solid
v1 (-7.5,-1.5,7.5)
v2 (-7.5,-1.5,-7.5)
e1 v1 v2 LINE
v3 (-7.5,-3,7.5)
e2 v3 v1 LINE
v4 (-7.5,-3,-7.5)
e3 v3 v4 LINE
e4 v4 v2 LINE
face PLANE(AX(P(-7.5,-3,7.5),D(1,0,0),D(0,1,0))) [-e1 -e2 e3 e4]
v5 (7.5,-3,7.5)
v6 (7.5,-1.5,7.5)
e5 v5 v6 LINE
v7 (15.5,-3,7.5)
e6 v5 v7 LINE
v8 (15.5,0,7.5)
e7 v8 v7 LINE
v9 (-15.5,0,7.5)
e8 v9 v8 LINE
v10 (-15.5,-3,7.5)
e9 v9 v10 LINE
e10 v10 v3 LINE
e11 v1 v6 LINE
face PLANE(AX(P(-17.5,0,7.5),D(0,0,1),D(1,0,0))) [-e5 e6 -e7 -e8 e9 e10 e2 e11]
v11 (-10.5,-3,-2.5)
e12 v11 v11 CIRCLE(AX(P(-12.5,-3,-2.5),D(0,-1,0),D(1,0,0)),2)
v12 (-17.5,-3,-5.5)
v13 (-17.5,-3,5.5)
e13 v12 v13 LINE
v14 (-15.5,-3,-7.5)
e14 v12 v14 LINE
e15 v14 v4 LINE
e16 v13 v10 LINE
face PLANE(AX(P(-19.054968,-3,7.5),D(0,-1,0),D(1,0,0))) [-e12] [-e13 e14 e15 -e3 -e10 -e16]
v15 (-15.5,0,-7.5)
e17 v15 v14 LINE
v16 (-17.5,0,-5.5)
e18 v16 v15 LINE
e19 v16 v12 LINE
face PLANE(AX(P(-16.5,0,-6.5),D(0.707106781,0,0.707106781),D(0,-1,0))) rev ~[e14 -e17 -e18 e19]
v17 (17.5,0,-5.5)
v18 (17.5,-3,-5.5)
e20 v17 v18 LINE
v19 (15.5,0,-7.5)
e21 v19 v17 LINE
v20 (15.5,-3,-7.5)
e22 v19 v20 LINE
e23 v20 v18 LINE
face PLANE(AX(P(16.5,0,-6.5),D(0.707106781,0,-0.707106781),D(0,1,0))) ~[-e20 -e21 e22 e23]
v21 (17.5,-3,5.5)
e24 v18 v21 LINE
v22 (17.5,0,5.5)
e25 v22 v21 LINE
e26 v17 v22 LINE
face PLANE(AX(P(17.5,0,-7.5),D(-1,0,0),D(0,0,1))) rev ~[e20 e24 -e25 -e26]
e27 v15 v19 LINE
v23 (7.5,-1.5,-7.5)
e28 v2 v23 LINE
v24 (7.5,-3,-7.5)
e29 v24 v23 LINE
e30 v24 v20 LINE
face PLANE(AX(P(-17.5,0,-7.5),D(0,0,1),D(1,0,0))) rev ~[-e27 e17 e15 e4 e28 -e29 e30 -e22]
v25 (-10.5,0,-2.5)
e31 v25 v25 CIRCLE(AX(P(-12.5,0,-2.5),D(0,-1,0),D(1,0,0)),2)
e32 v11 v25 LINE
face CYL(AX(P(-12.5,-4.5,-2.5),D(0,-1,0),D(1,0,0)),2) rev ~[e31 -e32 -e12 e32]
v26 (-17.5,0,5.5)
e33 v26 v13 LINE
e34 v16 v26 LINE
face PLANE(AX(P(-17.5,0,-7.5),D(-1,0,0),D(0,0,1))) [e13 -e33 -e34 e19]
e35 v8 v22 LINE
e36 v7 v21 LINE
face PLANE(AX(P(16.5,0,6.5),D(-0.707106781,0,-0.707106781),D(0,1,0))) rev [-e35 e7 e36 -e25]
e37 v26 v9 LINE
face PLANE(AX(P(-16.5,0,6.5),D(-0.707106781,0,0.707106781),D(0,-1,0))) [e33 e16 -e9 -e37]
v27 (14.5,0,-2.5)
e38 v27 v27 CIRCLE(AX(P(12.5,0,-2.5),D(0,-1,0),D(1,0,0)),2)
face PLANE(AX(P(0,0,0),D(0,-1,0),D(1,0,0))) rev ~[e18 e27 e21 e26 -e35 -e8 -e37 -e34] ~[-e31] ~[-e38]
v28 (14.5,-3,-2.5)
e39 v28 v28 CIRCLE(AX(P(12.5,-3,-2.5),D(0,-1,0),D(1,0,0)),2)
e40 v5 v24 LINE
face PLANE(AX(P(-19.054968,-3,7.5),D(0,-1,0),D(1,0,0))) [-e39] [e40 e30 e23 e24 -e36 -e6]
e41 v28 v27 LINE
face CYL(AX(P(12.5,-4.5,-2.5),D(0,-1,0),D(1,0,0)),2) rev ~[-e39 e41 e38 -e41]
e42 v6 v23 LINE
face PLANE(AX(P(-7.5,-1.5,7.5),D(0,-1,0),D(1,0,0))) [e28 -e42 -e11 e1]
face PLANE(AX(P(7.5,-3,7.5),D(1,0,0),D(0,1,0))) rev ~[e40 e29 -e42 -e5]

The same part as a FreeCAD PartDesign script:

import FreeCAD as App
import Part
import Sketcher

V = App.Vector


def edges_at(feature, points):
    """Names of the edges that pass closest to the given points."""
    edges = feature.Shape.Edges
    near = lambda p: min(range(len(edges)), key=lambda i: edges[i].distToShape(Part.Vertex(*p))[0])
    return sorted({f"Edge{near(p) + 1}" for p in points})

doc = App.newDocument("Part")
body = doc.addObject("PartDesign::Body", "Body")

# Sketch on XZ plane
sketch1 = body.newObject("Sketcher::SketchObject", "Sketch")
sketch1.AttachmentSupport = (doc.getObject("XZ_Plane"), [""])
sketch1.MapMode = "FlatFace"
sketch1.addGeometry(Part.LineSegment(V(-18, 8, 0), V(-18, -8, 0)), False)
sketch1.addGeometry(Part.LineSegment(V(-18, -8, 0), V(18, -8, 0)), False)
sketch1.addGeometry(Part.LineSegment(V(18, -8, 0), V(18, 8, 0)), False)
sketch1.addGeometry(Part.LineSegment(V(18, 8, 0), V(-18, 8, 0)), False)
sketch1.addConstraint(Sketcher.Constraint("Coincident", 0, 2, 1, 1))
sketch1.addConstraint(Sketcher.Constraint("Coincident", 1, 2, 2, 1))
sketch1.addConstraint(Sketcher.Constraint("Coincident", 2, 2, 3, 1))
sketch1.addConstraint(Sketcher.Constraint("Coincident", 3, 2, 0, 1))
sketch1.addConstraint(Sketcher.Constraint("Vertical", 0))
sketch1.addConstraint(Sketcher.Constraint("Horizontal", 1))
sketch1.addConstraint(Sketcher.Constraint("Vertical", 2))
sketch1.addConstraint(Sketcher.Constraint("Horizontal", 3))
sketch1.addConstraint(Sketcher.Constraint("Symmetric", 0, 2, 2, 2, -1, 1))
sketch1.addConstraint(Sketcher.Constraint("DistanceX", 1, 1, 1, 2, 35.0))
sketch1.addConstraint(Sketcher.Constraint("DistanceY", 0, 2, 0, 1, 15.0))
pad1 = body.newObject("PartDesign::Pad", "Pad")
pad1.Profile = sketch1
pad1.Length = 4.5

# Sketch on XY plane
sketch2 = body.newObject("Sketcher::SketchObject", "Sketch001")
sketch2.AttachmentSupport = (doc.getObject("XY_Plane"), [""])
sketch2.MapMode = "FlatFace"
sketch2.AttachmentOffset = App.Placement(V(0, 0, 7.5), App.Rotation())
sketch2.addGeometry(Part.LineSegment(V(-7.5, -1.5, 0), V(-7.5, -3, 0)), False)
sketch2.addGeometry(Part.LineSegment(V(-7.5, -3, 0), V(7.5, -3, 0)), False)
sketch2.addGeometry(Part.LineSegment(V(7.5, -3, 0), V(7.5, -1.5, 0)), False)
sketch2.addGeometry(Part.LineSegment(V(7.5, -1.5, 0), V(-7.5, -1.5, 0)), False)
sketch2.addConstraint(Sketcher.Constraint("Coincident", 0, 2, 1, 1))
sketch2.addConstraint(Sketcher.Constraint("Coincident", 1, 2, 2, 1))
sketch2.addConstraint(Sketcher.Constraint("Coincident", 2, 2, 3, 1))
sketch2.addConstraint(Sketcher.Constraint("Coincident", 3, 2, 0, 1))
sketch2.addConstraint(Sketcher.Constraint("Vertical", 0))
sketch2.addConstraint(Sketcher.Constraint("Horizontal", 1))
sketch2.addConstraint(Sketcher.Constraint("Vertical", 2))
sketch2.addConstraint(Sketcher.Constraint("Horizontal", 3))
sketch2.addConstraint(Sketcher.Constraint("DistanceX", 1, 1, 1, 2, 15.0))
sketch2.addConstraint(Sketcher.Constraint("DistanceY", 0, 2, 0, 1, 1.5))
sketch2.addConstraint(Sketcher.Constraint("DistanceY", 0, 2, -1, 1, 3.0))
sketch2.addConstraint(Sketcher.Constraint("DistanceX", 0, 2, -1, 1, 7.5))
pocket1 = body.newObject("PartDesign::Pocket", "Pocket")
pocket1.Profile = sketch2
pocket1.Type = "ThroughAll"

# Sketch on XZ plane
sketch3 = body.newObject("Sketcher::SketchObject", "Sketch002")
sketch3.AttachmentSupport = (doc.getObject("XZ_Plane"), [""])
sketch3.MapMode = "FlatFace"
sketch3.AttachmentOffset = App.Placement(V(0, 0, 4.5), App.Rotation())
sketch3.addGeometry(Part.Circle(V(12.5, -2.5, 0), V(0, 0, 1), 2), False)
sketch3.addGeometry(Part.Circle(V(-12.5, -2.5, 0), V(0, 0, 1), 2), False)
sketch3.addConstraint(Sketcher.Constraint("Equal", 0, 1))
sketch3.addConstraint(Sketcher.Constraint("Symmetric", 0, 3, 1, 3, -2))
sketch3.addConstraint(Sketcher.Constraint("Diameter", 0, 4.0))
sketch3.addConstraint(Sketcher.Constraint("DistanceX", 1, 3, 0, 3, 25.0))
sketch3.addConstraint(Sketcher.Constraint("DistanceY", 0, 3, -1, 1, 2.5))
pocket2 = body.newObject("PartDesign::Pocket", "Pocket001")
pocket2.Profile = sketch3
pocket2.Length = 10
doc.recompute()

chamfer = body.newObject("PartDesign::Chamfer", "Chamfer")
chamfer.Base = (pocket2, edges_at(pocket2, [
    (-17.5, -2.25, 7.5),
    (17.5, -2.25, 7.5),
    (17.5, -2.25, -7.5),
    (-17.5, -2.25, -7.5),
]))
chamfer.Size = 2

# Sketch on XY plane
sketch4 = body.newObject("Sketcher::SketchObject", "Sketch003")
sketch4.AttachmentSupport = (doc.getObject("XY_Plane"), [""])
sketch4.MapMode = "FlatFace"
sketch4.AttachmentOffset = App.Placement(V(0, 0, 7.5), App.Rotation())
sketch4.addGeometry(Part.LineSegment(V(-19.1, -3, 0), V(-19.1, -4.5, 0)), False)
sketch4.addGeometry(Part.LineSegment(V(-19.1, -4.5, 0), V(20.2, -4.5, 0)), False)
sketch4.addGeometry(Part.LineSegment(V(20.2, -4.5, 0), V(20.2, -3, 0)), False)
sketch4.addGeometry(Part.LineSegment(V(20.2, -3, 0), V(-19.1, -3, 0)), False)
sketch4.addConstraint(Sketcher.Constraint("Coincident", 0, 2, 1, 1))
sketch4.addConstraint(Sketcher.Constraint("Coincident", 1, 2, 2, 1))
sketch4.addConstraint(Sketcher.Constraint("Coincident", 2, 2, 3, 1))
sketch4.addConstraint(Sketcher.Constraint("Coincident", 3, 2, 0, 1))
sketch4.addConstraint(Sketcher.Constraint("Vertical", 0))
sketch4.addConstraint(Sketcher.Constraint("Horizontal", 1))
sketch4.addConstraint(Sketcher.Constraint("Vertical", 2))
sketch4.addConstraint(Sketcher.Constraint("Horizontal", 3))
sketch4.addConstraint(Sketcher.Constraint("DistanceY", 0, 2, 0, 1, 1.5))
sketch4.addConstraint(Sketcher.Constraint("DistanceY", 2, 2, -1, 1, 3.0))
sketch4.addConstraint(Sketcher.Constraint("DistanceX", 1, 1, 1, 2, 39.253565))
sketch4.addConstraint(Sketcher.Constraint("DistanceX", 0, 2, -1, 1, 19.054968))
pocket3 = body.newObject("PartDesign::Pocket", "Pocket002")
pocket3.Profile = sketch4
pocket3.Type = "ThroughAll"

doc.recompute()
